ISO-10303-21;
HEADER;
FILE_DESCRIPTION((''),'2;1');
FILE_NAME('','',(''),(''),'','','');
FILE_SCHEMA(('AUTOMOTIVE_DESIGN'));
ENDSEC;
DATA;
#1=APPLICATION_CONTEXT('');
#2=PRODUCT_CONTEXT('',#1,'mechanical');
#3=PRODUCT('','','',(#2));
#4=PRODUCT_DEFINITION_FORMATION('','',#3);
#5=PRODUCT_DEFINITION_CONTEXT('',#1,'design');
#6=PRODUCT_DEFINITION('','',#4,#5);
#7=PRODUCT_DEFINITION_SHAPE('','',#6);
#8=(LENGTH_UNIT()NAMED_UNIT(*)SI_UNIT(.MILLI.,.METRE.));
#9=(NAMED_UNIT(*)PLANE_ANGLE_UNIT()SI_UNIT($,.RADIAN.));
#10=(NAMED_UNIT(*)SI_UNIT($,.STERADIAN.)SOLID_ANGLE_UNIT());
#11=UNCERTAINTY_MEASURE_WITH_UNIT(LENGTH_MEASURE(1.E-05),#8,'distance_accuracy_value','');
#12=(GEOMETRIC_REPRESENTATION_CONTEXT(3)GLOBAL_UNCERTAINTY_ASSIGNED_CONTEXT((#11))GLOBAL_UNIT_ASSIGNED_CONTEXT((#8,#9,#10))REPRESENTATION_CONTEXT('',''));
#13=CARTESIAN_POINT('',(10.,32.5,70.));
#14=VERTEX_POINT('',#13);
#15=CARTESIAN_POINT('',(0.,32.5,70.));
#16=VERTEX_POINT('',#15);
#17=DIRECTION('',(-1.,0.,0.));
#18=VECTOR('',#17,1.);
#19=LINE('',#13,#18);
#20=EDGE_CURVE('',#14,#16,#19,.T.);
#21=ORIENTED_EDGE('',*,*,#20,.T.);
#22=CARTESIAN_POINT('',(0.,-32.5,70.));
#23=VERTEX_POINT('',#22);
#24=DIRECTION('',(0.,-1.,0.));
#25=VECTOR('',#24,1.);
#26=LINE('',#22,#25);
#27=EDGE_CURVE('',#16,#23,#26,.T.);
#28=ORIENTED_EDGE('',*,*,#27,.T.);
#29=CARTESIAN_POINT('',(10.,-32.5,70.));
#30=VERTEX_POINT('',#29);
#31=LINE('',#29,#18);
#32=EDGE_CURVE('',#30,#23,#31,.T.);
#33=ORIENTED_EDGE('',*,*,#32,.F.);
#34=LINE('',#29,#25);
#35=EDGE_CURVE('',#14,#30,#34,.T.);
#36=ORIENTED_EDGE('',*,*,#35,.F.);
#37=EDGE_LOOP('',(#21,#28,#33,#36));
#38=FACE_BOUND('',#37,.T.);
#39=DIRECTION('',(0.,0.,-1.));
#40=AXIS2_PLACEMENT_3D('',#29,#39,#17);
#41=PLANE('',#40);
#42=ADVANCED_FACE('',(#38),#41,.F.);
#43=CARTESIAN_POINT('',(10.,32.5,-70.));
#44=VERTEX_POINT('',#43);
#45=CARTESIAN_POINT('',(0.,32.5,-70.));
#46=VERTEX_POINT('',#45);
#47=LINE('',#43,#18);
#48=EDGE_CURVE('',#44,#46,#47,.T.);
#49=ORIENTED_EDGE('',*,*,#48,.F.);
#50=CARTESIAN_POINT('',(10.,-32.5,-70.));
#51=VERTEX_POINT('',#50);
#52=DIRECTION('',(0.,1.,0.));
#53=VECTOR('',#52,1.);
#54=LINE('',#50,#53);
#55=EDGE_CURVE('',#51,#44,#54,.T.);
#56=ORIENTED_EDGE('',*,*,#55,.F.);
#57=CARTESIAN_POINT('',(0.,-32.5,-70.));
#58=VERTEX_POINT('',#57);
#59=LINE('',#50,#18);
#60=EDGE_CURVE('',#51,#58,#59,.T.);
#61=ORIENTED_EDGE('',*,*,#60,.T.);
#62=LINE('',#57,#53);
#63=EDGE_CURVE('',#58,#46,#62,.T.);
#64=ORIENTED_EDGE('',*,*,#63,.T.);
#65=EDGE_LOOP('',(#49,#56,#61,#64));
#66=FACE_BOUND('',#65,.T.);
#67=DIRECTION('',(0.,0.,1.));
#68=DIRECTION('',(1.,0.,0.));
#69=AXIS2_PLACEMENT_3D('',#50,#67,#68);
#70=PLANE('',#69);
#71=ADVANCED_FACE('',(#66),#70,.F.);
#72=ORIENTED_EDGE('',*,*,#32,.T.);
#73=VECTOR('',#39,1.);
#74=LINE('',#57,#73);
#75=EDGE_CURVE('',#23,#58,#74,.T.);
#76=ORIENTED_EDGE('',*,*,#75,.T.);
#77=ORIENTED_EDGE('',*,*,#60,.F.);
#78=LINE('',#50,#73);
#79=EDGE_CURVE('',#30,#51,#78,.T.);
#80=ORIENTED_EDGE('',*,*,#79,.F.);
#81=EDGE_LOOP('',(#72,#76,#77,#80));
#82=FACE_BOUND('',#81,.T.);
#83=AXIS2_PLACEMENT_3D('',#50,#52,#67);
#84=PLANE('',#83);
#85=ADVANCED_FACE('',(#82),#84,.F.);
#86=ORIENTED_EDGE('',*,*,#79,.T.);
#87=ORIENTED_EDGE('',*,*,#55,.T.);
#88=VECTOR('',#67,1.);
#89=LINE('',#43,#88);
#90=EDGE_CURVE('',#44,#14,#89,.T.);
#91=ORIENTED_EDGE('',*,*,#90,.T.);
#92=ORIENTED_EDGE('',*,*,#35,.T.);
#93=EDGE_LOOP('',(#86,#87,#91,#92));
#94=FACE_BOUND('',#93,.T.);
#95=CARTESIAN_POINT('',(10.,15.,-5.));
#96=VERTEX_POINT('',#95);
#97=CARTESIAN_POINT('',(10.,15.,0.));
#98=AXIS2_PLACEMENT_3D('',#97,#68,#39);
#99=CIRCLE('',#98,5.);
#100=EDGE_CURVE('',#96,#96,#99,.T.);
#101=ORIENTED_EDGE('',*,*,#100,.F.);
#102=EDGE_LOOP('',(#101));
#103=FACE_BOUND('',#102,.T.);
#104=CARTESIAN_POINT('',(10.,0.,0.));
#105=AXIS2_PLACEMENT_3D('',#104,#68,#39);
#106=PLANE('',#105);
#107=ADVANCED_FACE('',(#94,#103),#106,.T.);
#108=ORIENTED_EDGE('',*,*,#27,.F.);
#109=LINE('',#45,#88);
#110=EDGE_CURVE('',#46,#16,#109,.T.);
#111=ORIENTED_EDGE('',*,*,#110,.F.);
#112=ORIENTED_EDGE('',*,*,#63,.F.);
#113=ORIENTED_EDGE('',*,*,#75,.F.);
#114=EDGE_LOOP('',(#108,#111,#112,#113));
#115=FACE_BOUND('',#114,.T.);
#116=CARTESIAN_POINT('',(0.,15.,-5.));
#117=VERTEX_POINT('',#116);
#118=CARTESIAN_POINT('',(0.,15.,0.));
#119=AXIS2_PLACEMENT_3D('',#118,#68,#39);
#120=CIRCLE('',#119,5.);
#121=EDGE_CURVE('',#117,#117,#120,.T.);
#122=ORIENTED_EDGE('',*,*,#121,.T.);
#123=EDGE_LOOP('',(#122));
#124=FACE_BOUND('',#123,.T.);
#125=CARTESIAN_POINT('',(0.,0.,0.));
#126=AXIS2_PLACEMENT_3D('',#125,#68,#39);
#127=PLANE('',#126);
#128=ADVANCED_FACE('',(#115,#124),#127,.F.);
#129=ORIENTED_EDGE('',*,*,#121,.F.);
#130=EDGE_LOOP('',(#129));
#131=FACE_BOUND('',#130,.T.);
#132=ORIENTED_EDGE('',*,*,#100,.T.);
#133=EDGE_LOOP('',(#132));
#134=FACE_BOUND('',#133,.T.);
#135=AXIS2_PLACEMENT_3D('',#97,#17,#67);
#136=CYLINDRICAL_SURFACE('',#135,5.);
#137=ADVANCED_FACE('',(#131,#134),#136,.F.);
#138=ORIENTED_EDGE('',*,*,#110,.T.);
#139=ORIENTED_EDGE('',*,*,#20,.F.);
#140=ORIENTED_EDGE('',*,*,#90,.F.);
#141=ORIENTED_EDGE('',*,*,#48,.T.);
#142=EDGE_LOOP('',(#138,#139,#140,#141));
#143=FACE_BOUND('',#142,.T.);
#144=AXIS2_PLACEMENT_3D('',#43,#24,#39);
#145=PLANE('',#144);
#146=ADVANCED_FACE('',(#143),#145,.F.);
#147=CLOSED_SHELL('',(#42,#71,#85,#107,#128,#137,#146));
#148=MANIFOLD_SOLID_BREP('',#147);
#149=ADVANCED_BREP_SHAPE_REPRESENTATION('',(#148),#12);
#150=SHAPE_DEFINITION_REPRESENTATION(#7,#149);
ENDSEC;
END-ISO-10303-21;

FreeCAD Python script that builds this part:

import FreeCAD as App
import Part
import Sketcher
from FreeCAD import Vector


def add_polygon(sketch, points):
    """Adds a closed chain of lines whose ends are joined by coincident constraints."""
    first, n = sketch.GeometryCount, len(points)
    for a, b in zip(points, points[1:] + points[:1]):
        sketch.addGeometry(Part.LineSegment(App.Vector(*a, 0), App.Vector(*b, 0)), False)
    for i in range(n):
        sketch.addConstraint(Sketcher.Constraint("Coincident", first + i, 2, first + (i + 1) % n, 1))

doc = App.newDocument("Part")
body = doc.addObject("PartDesign::Body", "Body")

# Sketch on YZ plane
sketch1 = body.newObject("Sketcher::SketchObject", "Sketch")
sketch1.AttachmentSupport = (doc.getObject("YZ_Plane"), [""])
sketch1.MapMode = "FlatFace"
add_polygon(sketch1, [(32, 70), (-32, 70), (-32, -70), (32, -70)])  # lines 0-3
sketch1.addGeometry(Part.Circle(Vector(15, 0, 0), Vector(0, 0, 1), 5), False)  # 4
sketch1.addConstraint([
    Sketcher.Constraint("Horizontal", 0),
    Sketcher.Constraint("Vertical", 1),
    Sketcher.Constraint("Horizontal", 2),
    Sketcher.Constraint("Vertical", 3),
    Sketcher.Constraint("Symmetric", 0, 2, 2, 2, -1, 1),
    Sketcher.Constraint("PointOnObject", 4, 3, -1),
    Sketcher.Constraint("Diameter", 4, 10.0),
    Sketcher.Constraint("DistanceX", 0, 2, 0, 1, 65.0),
    Sketcher.Constraint("DistanceY", 1, 2, 1, 1, 140.0),
    Sketcher.Constraint("DistanceX", -1, 1, 4, 3, 15.0),
])
pad1 = body.newObject("PartDesign::Pad", "Pad")
pad1.Profile = sketch1
pad1.Length = 10

doc.recompute()
